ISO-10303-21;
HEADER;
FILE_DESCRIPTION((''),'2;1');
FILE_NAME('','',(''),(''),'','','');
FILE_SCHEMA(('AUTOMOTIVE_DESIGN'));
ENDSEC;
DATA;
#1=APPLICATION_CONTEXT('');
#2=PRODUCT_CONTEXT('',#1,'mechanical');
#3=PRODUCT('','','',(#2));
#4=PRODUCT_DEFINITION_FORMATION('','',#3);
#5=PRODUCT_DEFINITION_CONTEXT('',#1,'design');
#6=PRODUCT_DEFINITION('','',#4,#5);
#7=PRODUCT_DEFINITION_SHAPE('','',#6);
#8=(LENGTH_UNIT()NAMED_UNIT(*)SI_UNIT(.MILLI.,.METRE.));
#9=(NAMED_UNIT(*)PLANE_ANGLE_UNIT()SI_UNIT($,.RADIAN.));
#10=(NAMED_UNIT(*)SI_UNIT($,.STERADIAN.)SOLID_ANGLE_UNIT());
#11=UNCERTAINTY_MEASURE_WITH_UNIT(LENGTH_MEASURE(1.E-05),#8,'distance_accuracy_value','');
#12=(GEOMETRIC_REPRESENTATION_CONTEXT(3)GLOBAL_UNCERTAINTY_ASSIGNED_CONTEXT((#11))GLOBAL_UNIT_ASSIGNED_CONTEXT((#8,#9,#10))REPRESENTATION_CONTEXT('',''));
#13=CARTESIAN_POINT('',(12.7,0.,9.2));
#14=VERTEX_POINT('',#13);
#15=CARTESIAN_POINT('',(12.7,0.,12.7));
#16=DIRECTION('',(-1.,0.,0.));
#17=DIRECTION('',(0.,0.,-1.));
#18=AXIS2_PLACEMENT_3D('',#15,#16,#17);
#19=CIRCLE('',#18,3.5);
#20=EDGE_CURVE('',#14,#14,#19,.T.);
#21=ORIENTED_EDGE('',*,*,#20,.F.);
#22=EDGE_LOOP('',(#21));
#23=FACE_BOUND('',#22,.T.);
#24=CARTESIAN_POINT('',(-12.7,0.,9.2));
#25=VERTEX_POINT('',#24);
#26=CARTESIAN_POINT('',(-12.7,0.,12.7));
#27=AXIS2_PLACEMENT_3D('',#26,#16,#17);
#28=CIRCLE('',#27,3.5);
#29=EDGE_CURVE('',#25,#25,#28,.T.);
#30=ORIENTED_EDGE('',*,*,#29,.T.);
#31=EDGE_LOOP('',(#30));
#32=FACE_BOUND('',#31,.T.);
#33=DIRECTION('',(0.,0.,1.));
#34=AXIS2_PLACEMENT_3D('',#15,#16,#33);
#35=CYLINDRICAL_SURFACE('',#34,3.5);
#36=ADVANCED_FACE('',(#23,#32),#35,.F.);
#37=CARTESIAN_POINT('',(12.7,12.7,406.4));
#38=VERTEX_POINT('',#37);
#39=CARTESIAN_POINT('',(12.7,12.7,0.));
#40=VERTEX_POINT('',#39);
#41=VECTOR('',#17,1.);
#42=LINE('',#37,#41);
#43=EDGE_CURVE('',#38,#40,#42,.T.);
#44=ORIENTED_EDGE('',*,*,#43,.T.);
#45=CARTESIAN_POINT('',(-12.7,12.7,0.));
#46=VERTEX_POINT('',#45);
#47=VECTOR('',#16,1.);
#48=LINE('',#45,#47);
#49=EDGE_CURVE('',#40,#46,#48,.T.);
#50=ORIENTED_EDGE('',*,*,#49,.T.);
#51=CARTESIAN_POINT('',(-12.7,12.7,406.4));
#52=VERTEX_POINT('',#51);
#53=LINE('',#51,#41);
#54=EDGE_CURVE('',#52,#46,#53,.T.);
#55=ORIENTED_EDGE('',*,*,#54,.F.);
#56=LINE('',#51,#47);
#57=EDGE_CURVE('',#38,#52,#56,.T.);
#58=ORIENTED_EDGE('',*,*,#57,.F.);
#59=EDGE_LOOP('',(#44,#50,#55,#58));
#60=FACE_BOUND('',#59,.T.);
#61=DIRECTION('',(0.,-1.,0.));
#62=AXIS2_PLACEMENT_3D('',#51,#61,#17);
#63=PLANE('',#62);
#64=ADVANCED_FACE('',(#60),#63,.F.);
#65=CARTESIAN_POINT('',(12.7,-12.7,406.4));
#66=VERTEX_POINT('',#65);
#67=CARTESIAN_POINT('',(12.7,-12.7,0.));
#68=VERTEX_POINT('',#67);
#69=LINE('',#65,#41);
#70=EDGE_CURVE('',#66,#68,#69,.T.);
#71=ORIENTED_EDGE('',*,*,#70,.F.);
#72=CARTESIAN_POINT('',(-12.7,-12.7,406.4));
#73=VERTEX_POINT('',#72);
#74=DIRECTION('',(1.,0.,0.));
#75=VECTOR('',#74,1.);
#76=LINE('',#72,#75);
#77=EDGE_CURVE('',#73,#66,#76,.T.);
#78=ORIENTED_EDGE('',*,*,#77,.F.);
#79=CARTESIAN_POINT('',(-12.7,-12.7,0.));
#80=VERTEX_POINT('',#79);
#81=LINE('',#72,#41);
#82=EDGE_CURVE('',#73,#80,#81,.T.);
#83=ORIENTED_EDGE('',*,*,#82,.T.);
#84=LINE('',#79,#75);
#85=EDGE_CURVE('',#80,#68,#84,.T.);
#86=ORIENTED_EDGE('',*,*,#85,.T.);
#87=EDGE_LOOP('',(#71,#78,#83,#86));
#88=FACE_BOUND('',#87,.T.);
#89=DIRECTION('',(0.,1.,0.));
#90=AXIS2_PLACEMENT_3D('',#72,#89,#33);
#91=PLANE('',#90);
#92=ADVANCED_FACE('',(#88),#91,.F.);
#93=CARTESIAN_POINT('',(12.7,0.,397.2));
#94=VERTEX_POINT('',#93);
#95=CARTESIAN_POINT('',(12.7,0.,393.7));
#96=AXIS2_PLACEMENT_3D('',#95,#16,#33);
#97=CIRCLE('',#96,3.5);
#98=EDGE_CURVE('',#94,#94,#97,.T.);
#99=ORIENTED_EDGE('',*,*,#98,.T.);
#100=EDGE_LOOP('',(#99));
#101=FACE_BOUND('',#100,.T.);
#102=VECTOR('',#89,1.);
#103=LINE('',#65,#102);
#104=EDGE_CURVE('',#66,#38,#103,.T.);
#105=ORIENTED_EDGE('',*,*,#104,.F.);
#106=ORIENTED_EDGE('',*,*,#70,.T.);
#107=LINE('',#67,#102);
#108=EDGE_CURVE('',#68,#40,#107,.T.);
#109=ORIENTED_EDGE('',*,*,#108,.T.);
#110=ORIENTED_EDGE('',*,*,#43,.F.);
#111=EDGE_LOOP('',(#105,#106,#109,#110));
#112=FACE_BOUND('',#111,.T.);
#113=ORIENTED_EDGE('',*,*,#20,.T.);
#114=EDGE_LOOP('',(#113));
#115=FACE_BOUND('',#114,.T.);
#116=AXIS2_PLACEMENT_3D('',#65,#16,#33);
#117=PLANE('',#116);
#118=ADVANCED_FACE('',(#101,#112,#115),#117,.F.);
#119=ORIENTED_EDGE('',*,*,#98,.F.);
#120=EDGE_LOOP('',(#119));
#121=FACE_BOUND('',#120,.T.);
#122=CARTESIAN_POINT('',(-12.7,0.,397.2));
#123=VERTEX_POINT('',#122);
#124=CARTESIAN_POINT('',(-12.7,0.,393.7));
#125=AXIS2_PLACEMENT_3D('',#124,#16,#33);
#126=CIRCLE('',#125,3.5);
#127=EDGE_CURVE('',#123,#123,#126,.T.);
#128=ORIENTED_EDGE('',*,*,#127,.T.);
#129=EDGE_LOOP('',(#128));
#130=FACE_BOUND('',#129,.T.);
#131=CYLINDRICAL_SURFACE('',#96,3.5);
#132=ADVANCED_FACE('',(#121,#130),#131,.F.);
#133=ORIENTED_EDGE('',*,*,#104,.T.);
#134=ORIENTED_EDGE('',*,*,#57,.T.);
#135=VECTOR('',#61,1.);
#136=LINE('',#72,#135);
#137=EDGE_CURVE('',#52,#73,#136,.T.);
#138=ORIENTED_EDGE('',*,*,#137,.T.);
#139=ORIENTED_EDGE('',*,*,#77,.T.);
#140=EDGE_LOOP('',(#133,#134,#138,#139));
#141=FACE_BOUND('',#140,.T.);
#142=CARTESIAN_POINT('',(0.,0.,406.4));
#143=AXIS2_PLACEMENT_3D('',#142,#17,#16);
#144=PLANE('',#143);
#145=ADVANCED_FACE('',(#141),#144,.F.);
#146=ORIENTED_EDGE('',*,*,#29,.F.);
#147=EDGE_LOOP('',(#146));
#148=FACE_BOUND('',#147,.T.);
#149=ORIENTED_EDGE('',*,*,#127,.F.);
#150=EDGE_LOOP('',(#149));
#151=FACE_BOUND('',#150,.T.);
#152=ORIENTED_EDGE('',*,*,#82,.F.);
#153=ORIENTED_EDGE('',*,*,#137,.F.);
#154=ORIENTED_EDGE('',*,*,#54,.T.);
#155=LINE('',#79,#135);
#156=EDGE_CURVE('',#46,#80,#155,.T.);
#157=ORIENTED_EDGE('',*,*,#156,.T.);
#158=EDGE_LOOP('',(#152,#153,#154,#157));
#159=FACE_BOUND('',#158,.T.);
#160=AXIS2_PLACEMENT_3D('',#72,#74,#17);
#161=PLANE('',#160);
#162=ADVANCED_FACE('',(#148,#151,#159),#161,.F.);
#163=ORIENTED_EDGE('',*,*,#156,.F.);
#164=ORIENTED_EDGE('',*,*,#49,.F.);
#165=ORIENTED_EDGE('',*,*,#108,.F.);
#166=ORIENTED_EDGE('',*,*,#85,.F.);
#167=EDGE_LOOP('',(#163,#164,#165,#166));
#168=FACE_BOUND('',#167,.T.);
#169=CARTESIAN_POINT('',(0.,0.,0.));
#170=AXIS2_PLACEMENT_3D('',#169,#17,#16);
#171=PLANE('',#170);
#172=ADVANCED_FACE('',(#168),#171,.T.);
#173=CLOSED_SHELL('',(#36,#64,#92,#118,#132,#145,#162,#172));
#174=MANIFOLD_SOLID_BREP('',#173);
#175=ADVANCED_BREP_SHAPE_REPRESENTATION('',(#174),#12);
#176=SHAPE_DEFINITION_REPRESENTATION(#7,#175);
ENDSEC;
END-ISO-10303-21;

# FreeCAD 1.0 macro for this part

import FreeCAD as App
import Part
import Sketcher
from FreeCAD import Vector

doc = App.newDocument("Part")
body = doc.addObject("PartDesign::Body", "Body")

sketch1 = body.newObject("Sketcher::SketchObject", "Sketch")
sketch1.AttachmentSupport = (doc.getObject("XY_Plane"), [""])
sketch1.MapMode = "FlatFace"
sketch1.addGeometry(Part.LineSegment(Vector(-13, 13, 0), Vector(-13, -13, 0)), False)
sketch1.addGeometry(Part.LineSegment(Vector(-13, -13, 0), Vector(13, -13, 0)), False)
sketch1.addGeometry(Part.LineSegment(Vector(13, -13, 0), Vector(13, 13, 0)), False)
sketch1.addGeometry(Part.LineSegment(Vector(13, 13, 0), Vector(-13, 13, 0)), False)
sketch1.addConstraint(Sketcher.Constraint("Coincident", 0, 2, 1, 1))
sketch1.addConstraint(Sketcher.Constraint("Coincident", 1, 2, 2, 1))
sketch1.addConstraint(Sketcher.Constraint("Coincident", 2, 2, 3, 1))
sketch1.addConstraint(Sketcher.Constraint("Coincident", 3, 2, 0, 1))
sketch1.addConstraint(Sketcher.Constraint("Vertical", 0))
sketch1.addConstraint(Sketcher.Constraint("Horizontal", 1))
sketch1.addConstraint(Sketcher.Constraint("Vertical", 2))
sketch1.addConstraint(Sketcher.Constraint("Horizontal", 3))
sketch1.addConstraint(Sketcher.Constraint("Symmetric", 0, 2, 2, 2, -1, 1))
sketch1.addConstraint(Sketcher.Constraint("Equal", 3, 0))
sketch1.addConstraint(Sketcher.Constraint("DistanceX", 1, 1, 1, 2, 25.4))
pad1 = body.newObject("PartDesign::Pad", "Pad")
pad1.Profile = sketch1
pad1.Length = 406.4

sketch2 = body.newObject("Sketcher::SketchObject", "Sketch001")
sketch2.AttachmentSupport = (doc.getObject("YZ_Plane"), [""])
sketch2.MapMode = "FlatFace"
sketch2.AttachmentOffset = App.Placement(Vector(0, 0, -12.7), App.Rotation())
sketch2.addGeometry(Part.Circle(Vector(0, 393.7, 0), Vector(0, 0, 1), 3.5), False)
sketch2.addGeometry(Part.Circle(Vector(0, 12.7, 0), Vector(0, 0, 1), 3.5), False)
sketch2.addConstraint(Sketcher.Constraint("Equal", 0, 1))
sketch2.addConstraint(Sketcher.Constraint("PointOnObject", 0, 3, -2))
sketch2.addConstraint(Sketcher.Constraint("PointOnObject", 1, 3, -2))
sketch2.addConstraint(Sketcher.Constraint("Diameter", 0, 7.0))
sketch2.addConstraint(Sketcher.Constraint("DistanceY", 1, 3, 0, 3, 381.0))
sketch2.addConstraint(Sketcher.Constraint("DistanceY", -1, 1, 0, 3, 393.7))
pocket1 = body.newObject("PartDesign::Pocket", "Pocket")
pocket1.Profile = sketch2
pocket1.Type = "ThroughAll"
pocket1.Reversed = True

doc.recompute()
